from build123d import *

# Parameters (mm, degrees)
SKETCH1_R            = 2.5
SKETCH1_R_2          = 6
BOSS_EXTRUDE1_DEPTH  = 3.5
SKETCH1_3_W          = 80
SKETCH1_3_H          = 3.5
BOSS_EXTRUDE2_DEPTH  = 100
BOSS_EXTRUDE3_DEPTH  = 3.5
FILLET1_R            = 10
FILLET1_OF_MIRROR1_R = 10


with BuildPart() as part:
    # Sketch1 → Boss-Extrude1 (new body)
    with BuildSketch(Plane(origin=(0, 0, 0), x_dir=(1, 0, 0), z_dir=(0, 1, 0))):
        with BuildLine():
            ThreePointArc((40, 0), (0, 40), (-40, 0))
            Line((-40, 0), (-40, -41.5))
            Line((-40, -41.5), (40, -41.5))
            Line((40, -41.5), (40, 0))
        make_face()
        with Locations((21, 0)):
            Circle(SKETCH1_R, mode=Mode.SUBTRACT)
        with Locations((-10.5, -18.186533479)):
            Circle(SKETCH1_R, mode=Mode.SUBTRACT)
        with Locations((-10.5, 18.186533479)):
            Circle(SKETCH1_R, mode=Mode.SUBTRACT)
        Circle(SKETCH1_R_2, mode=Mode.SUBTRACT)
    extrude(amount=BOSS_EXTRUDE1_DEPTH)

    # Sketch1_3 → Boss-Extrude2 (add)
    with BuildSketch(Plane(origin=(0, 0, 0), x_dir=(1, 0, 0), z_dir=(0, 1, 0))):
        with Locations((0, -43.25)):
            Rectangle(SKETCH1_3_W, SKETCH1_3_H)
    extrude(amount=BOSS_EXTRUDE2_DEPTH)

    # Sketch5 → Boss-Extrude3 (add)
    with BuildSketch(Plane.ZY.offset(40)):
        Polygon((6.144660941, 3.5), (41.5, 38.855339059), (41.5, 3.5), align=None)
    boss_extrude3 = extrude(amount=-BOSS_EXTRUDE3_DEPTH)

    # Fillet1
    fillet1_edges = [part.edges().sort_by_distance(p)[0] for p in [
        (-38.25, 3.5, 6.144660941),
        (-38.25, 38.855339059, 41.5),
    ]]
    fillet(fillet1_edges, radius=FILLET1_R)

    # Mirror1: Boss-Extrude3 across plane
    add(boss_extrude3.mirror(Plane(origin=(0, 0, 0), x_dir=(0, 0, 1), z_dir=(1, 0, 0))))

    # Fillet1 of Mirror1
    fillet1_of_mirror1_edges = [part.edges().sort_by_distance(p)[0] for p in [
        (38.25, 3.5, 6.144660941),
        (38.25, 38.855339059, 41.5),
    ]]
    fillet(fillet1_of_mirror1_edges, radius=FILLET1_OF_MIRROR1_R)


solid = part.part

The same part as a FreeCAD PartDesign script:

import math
import FreeCAD as App
import Part
import Sketcher

V = App.Vector
Q = App.Units.Quantity


def edges_at(feature, points):
    """Names of the edges that pass closest to the given points."""
    edges = feature.Shape.Edges
    near = lambda p: min(range(len(edges)), key=lambda i: edges[i].distToShape(Part.Vertex(*p))[0])
    return sorted({f"Edge{near(p) + 1}" for p in points})


def add_polygon(sketch, points):
    """Adds a closed chain of lines whose ends are joined by coincident constraints."""
    first, n = sketch.GeometryCount, len(points)
    for a, b in zip(points, points[1:] + points[:1]):
        sketch.addGeometry(Part.LineSegment(App.Vector(*a, 0), App.Vector(*b, 0)), False)
    for i in range(n):
        sketch.addConstraint(Sketcher.Constraint("Coincident", first + i, 2, first + (i + 1) % n, 1))

doc = App.newDocument("Part")
body = doc.addObject("PartDesign::Body", "Body")

# Sketch on XZ plane
sketch1 = body.newObject("Sketcher::SketchObject", "Sketch")
sketch1.AttachmentSupport = (doc.getObject("XZ_Plane"), [""])
sketch1.MapMode = "FlatFace"
sketch1.addGeometry([
    Part.ArcOfCircle(Part.Circle(V(0, 0, 0), V(0, 0, 1), 40), math.radians(180), math.radians(360)),  # 0
    Part.LineSegment(V(-40, 0, 0), V(-40, 41.5, 0)),  # 1
    Part.LineSegment(V(-40, 41.5, 0), V(40, 41.5, 0)),  # 2
    Part.LineSegment(V(40, 41.5, 0), V(40, 0, 0)),  # 3
    Part.Circle(V(-10.5, 18.2, 0), V(0, 0, 1), 2.5),  # 4
    Part.Circle(V(0, 0, 0), V(0, 0, 1), 6),  # 5
    Part.Circle(V(21, 0, 0), V(0, 0, 1), 2.5),  # 6
    Part.Circle(V(-10.5, -18.2, 0), V(0, 0, 1), 2.5),  # 7
], False)
sketch1.addConstraint([
    Sketcher.Constraint("Tangent", 0, 1, 1, 1),
    Sketcher.Constraint("Coincident", 1, 2, 2, 1),
    Sketcher.Constraint("Coincident", 2, 2, 3, 1),
    Sketcher.Constraint("Tangent", 3, 2, 0, 2),
    Sketcher.Constraint("Vertical", 1),
    Sketcher.Constraint("Horizontal", 2),
    Sketcher.Constraint("Vertical", 3),
    Sketcher.Constraint("Coincident", 0, 3, -1, 1),
    Sketcher.Constraint("Coincident", 5, 3, -1, 1),
    Sketcher.Constraint("Equal", 4, 6),
    Sketcher.Constraint("Equal", 6, 7),
    Sketcher.Constraint("Symmetric", 4, 3, 7, 3, -1),
    Sketcher.Constraint("PointOnObject", 6, 3, -1),
    Sketcher.Constraint("Diameter", 4, Q("5 mm")),
    Sketcher.Constraint("Diameter", 5, Q("12 mm")),
    Sketcher.Constraint("Radius", 0, Q("40 mm")),
    Sketcher.Constraint("DistanceY", 1, 1, 1, 2, Q("41.5 mm")),
    Sketcher.Constraint("DistanceX", -1, 1, 6, 3, Q("21 mm")),
    Sketcher.Constraint("DistanceX", 4, 3, -1, 1, Q("10.5 mm")),
    Sketcher.Constraint("DistanceY", -1, 1, 4, 3, Q("18.186533 mm")),
])
pad1 = body.newObject("PartDesign::Pad", "Pad")
pad1.Profile = sketch1
pad1.Length = 3.5
pad1.Reversed = True

# Sketch on XZ plane
sketch2 = body.newObject("Sketcher::SketchObject", "Sketch001")
sketch2.AttachmentSupport = (doc.getObject("XZ_Plane"), [""])
sketch2.MapMode = "FlatFace"
add_polygon(sketch2, [(-40, 41.5), (-40, 45), (40, 45), (40, 41.5)])  # lines 0-3
sketch2.addConstraint([
    Sketcher.Constraint("Vertical", 0),
    Sketcher.Constraint("Horizontal", 1),
    Sketcher.Constraint("Vertical", 2),
    Sketcher.Constraint("Horizontal", 3),
    Sketcher.Constraint("DistanceX", 1, 1, 1, 2, Q("80 mm")),
    Sketcher.Constraint("DistanceY", 0, 1, 0, 2, Q("3.5 mm")),
    Sketcher.Constraint("DistanceX", 0, 2, -1, 1, Q("40 mm")),
    Sketcher.Constraint("DistanceY", -1, 1, 0, 2, Q("45 mm")),
])
pad2 = body.newObject("PartDesign::Pad", "Pad001")
pad2.Profile = sketch2
pad2.Length = 100
pad2.Reversed = True

# Sketch on YZ plane
sketch3 = body.newObject("Sketcher::SketchObject", "Sketch002")
sketch3.AttachmentSupport = (doc.getObject("YZ_Plane"), [""])
sketch3.MapMode = "FlatFace"
sketch3.AttachmentOffset = App.Placement(V(0, 0, -40), App.Rotation())
add_polygon(sketch3, [(39, 42), (4, 6), (4, 42)])  # lines 0-2
sketch3.addConstraint([
    Sketcher.Constraint("Vertical", 1),
    Sketcher.Constraint("Horizontal", 2),
    Sketcher.Constraint("Equal", 2, 1),
    Sketcher.Constraint("Distance", 0, Q("50 mm")),
    Sketcher.Constraint("DistanceX", -1, 1, 0, 2, Q("3.5 mm")),
    Sketcher.Constraint("DistanceY", -1, 1, 1, 2, Q("41.5 mm")),
])
pad3 = body.newObject("PartDesign::Pad", "Pad002")
pad3.Profile = sketch3
pad3.Length = 3.5
doc.recompute()

fillet = body.newObject("PartDesign::Fillet", "Fillet")
fillet.Base = (pad3, edges_at(pad3, [(-38.25, 3.5, 6.145), (-38.25, 38.855, 41.5)]))
fillet.Radius = 10
doc.recompute()

mirrored = body.newObject("PartDesign::Mirrored", "Mirrored")
mirrored.Originals = [pad3]
mirrored.MirrorPlane = (doc.getObject("YZ_Plane"), [""])
body.Tip = mirrored
doc.recompute()

fillet2 = body.newObject("PartDesign::Fillet", "Fillet001")
fillet2.Base = (mirrored, edges_at(mirrored, [(38.25, 3.5, 6.145), (38.25, 38.855, 41.5)]))
fillet2.Radius = 10

doc.recompute()
